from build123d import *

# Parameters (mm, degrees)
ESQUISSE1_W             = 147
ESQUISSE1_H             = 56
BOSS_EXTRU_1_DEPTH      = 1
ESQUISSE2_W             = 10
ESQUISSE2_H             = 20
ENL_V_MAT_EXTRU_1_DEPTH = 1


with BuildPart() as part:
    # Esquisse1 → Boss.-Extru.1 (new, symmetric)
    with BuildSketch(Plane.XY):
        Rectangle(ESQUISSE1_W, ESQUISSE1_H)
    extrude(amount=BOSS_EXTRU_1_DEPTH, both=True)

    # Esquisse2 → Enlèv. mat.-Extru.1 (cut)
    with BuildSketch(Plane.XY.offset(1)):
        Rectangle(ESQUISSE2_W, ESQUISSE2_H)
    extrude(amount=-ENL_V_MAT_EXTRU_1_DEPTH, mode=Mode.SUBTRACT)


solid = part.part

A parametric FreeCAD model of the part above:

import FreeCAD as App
import Part
import Sketcher


def add_polygon(sketch, points):
    """Adds a closed chain of lines whose ends are joined by coincident constraints."""
    first, n = sketch.GeometryCount, len(points)
    for a, b in zip(points, points[1:] + points[:1]):
        sketch.addGeometry(Part.LineSegment(App.Vector(*a, 0), App.Vector(*b, 0)), False)
    for i in range(n):
        sketch.addConstraint(Sketcher.Constraint("Coincident", first + i, 2, first + (i + 1) % n, 1))

doc = App.newDocument("Part")
body = doc.addObject("PartDesign::Body", "Body")

# Sketch on XY plane
sketch1 = body.newObject("Sketcher::SketchObject", "Sketch")
sketch1.AttachmentSupport = (doc.getObject("XY_Plane"), [""])
sketch1.MapMode = "FlatFace"
add_polygon(sketch1, [(-73.5, 28), (-73.5, -28), (73.5, -28), (73.5, 28)])  # lines 0-3
sketch1.addConstraint(Sketcher.Constraint("Vertical", 0))
sketch1.addConstraint(Sketcher.Constraint("Horizontal", 1))
sketch1.addConstraint(Sketcher.Constraint("Vertical", 2))
sketch1.addConstraint(Sketcher.Constraint("Horizontal", 3))
sketch1.addConstraint(Sketcher.Constraint("Symmetric", 0, 2, 2, 2, -1, 1))
sketch1.addConstraint(Sketcher.Constraint("DistanceX", 1, 1, 1, 2, 147.0))
sketch1.addConstraint(Sketcher.Constraint("DistanceY", 0, 2, 0, 1, 56.0))
pad1 = body.newObject("PartDesign::Pad", "Pad")
pad1.Profile = sketch1
pad1.Length = 2
pad1.Midplane = True

# Sketch on XY plane
sketch2 = body.newObject("Sketcher::SketchObject", "Sketch001")
sketch2.AttachmentSupport = (doc.getObject("XY_Plane"), [""])
sketch2.MapMode = "FlatFace"
sketch2.AttachmentOffset = App.Placement(App.Vector(0, 0, 1), App.Rotation())
add_polygon(sketch2, [(-5, 10), (-5, -10), (5, -10), (5, 10)])  # lines 0-3
sketch2.addConstraint(Sketcher.Constraint("Vertical", 0))
sketch2.addConstraint(Sketcher.Constraint("Horizontal", 1))
sketch2.addConstraint(Sketcher.Constraint("Vertical", 2))
sketch2.addConstraint(Sketcher.Constraint("Horizontal", 3))
sketch2.addConstraint(Sketcher.Constraint("Symmetric", 0, 2, 2, 2, -1, 1))
sketch2.addConstraint(Sketcher.Constraint("DistanceX", 1, 1, 1, 2, 10.0))
sketch2.addConstraint(Sketcher.Constraint("DistanceY", 0, 2, 0, 1, 20.0))
pocket1 = body.newObject("PartDesign::Pocket", "Pocket")
pocket1.Profile = sketch2
pocket1.Length = 1

doc.recompute()
